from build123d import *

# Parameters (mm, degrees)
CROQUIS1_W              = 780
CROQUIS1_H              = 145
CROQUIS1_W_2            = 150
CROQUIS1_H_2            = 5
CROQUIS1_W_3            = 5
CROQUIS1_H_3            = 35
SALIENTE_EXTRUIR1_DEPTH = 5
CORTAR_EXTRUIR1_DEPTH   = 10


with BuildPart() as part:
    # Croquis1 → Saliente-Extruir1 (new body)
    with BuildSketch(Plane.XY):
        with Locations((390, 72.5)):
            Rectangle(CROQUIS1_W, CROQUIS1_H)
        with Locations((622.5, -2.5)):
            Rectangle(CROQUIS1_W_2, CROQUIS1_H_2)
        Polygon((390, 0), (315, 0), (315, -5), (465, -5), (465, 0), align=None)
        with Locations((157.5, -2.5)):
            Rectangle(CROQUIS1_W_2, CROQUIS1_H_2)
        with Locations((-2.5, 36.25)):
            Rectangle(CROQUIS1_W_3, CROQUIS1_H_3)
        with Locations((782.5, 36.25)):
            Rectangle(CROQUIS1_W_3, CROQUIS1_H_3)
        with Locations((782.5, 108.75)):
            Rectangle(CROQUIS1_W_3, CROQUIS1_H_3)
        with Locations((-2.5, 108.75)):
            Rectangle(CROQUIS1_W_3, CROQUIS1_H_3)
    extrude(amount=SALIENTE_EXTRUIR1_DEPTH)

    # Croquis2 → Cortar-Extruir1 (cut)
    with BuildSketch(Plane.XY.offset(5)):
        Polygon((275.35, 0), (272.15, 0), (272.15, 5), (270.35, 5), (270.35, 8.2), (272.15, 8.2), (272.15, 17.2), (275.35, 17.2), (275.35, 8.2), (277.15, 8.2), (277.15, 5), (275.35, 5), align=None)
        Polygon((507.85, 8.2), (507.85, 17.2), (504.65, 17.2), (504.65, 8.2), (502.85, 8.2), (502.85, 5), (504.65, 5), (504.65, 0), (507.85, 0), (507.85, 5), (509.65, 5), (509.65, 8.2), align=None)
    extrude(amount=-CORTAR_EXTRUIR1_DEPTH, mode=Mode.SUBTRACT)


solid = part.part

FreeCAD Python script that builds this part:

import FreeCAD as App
import Part
import Sketcher

V = App.Vector

doc = App.newDocument("Part")
body = doc.addObject("PartDesign::Body", "Body")

# Sketch on XY plane
sketch1 = body.newObject("Sketcher::SketchObject", "Sketch")
sketch1.AttachmentSupport = (doc.getObject("XY_Plane"), [""])
sketch1.MapMode = "FlatFace"
sketch1.addGeometry(Part.LineSegment(V(0, 19, 0), V(0, 0, 0)), False)
sketch1.addGeometry(Part.LineSegment(V(0, 0, 0), V(82, 0, 0)), False)
sketch1.addGeometry(Part.LineSegment(V(82, 0, 0), V(82, -5, 0)), False)
sketch1.addGeometry(Part.LineSegment(V(82, -5, 0), V(232, -5, 0)), False)
sketch1.addGeometry(Part.LineSegment(V(232, -5, 0), V(232, 0, 0)), False)
sketch1.addGeometry(Part.LineSegment(V(232, 0, 0), V(315, 0, 0)), False)
sketch1.addGeometry(Part.LineSegment(V(315, 0, 0), V(315, -5, 0)), False)
sketch1.addGeometry(Part.LineSegment(V(315, -5, 0), V(465, -5, 0)), False)
sketch1.addGeometry(Part.LineSegment(V(465, -5, 0), V(465, 0, 0)), False)
sketch1.addGeometry(Part.LineSegment(V(465, 0, 0), V(548, 0, 0)), False)
sketch1.addGeometry(Part.LineSegment(V(548, 0, 0), V(548, -5, 0)), False)
sketch1.addGeometry(Part.LineSegment(V(548, -5, 0), V(698, -5, 0)), False)
sketch1.addGeometry(Part.LineSegment(V(698, -5, 0), V(698, 0, 0)), False)
sketch1.addGeometry(Part.LineSegment(V(698, 0, 0), V(780, 0, 0)), False)
sketch1.addGeometry(Part.LineSegment(V(780, 0, 0), V(780, 19, 0)), False)
sketch1.addGeometry(Part.LineSegment(V(780, 19, 0), V(785, 19, 0)), False)
sketch1.addGeometry(Part.LineSegment(V(785, 19, 0), V(785, 54, 0)), False)
sketch1.addGeometry(Part.LineSegment(V(785, 54, 0), V(780, 54, 0)), False)
sketch1.addGeometry(Part.LineSegment(V(780, 54, 0), V(780, 91, 0)), False)
sketch1.addGeometry(Part.LineSegment(V(780, 91, 0), V(785, 91, 0)), False)
sketch1.addGeometry(Part.LineSegment(V(785, 91, 0), V(785, 126, 0)), False)
sketch1.addGeometry(Part.LineSegment(V(785, 126, 0), V(780, 126, 0)), False)
sketch1.addGeometry(Part.LineSegment(V(780, 126, 0), V(780, 145, 0)), False)
sketch1.addGeometry(Part.LineSegment(V(780, 145, 0), V(0, 145, 0)), False)
sketch1.addGeometry(Part.LineSegment(V(0, 145, 0), V(0, 126, 0)), False)
sketch1.addGeometry(Part.LineSegment(V(0, 126, 0), V(-5, 126, 0)), False)
sketch1.addGeometry(Part.LineSegment(V(-5, 126, 0), V(-5, 91, 0)), False)
sketch1.addGeometry(Part.LineSegment(V(-5, 91, 0), V(0, 91, 0)), False)
sketch1.addGeometry(Part.LineSegment(V(0, 91, 0), V(0, 54, 0)), False)
sketch1.addGeometry(Part.LineSegment(V(0, 54, 0), V(-5, 54, 0)), False)
sketch1.addGeometry(Part.LineSegment(V(-5, 54, 0), V(-5, 19, 0)), False)
sketch1.addGeometry(Part.LineSegment(V(-5, 19, 0), V(0, 19, 0)), False)
sketch1.addConstraint(Sketcher.Constraint("Coincident", 0, 2, 1, 1))
sketch1.addConstraint(Sketcher.Constraint("Coincident", 1, 2, 2, 1))
sketch1.addConstraint(Sketcher.Constraint("Coincident", 2, 2, 3, 1))
sketch1.addConstraint(Sketcher.Constraint("Coincident", 3, 2, 4, 1))
sketch1.addConstraint(Sketcher.Constraint("Coincident", 4, 2, 5, 1))
sketch1.addConstraint(Sketcher.Constraint("Coincident", 5, 2, 6, 1))
sketch1.addConstraint(Sketcher.Constraint("Coincident", 6, 2, 7, 1))
sketch1.addConstraint(Sketcher.Constraint("Coincident", 7, 2, 8, 1))
sketch1.addConstraint(Sketcher.Constraint("Coincident", 8, 2, 9, 1))
sketch1.addConstraint(Sketcher.Constraint("Coincident", 9, 2, 10, 1))
sketch1.addConstraint(Sketcher.Constraint("Coincident", 10, 2, 11, 1))
sketch1.addConstraint(Sketcher.Constraint("Coincident", 11, 2, 12, 1))
sketch1.addConstraint(Sketcher.Constraint("Coincident", 12, 2, 13, 1))
sketch1.addConstraint(Sketcher.Constraint("Coincident", 13, 2, 14, 1))
sketch1.addConstraint(Sketcher.Constraint("Coincident", 14, 2, 15, 1))
sketch1.addConstraint(Sketcher.Constraint("Coincident", 15, 2, 16, 1))
sketch1.addConstraint(Sketcher.Constraint("Coincident", 16, 2, 17, 1))
sketch1.addConstraint(Sketcher.Constraint("Coincident", 17, 2, 18, 1))
sketch1.addConstraint(Sketcher.Constraint("Coincident", 18, 2, 19, 1))
sketch1.addConstraint(Sketcher.Constraint("Coincident", 19, 2, 20, 1))
sketch1.addConstraint(Sketcher.Constraint("Coincident", 20, 2, 21, 1))
sketch1.addConstraint(Sketcher.Constraint("Coincident", 21, 2, 22, 1))
sketch1.addConstraint(Sketcher.Constraint("Coincident", 22, 2, 23, 1))
sketch1.addConstraint(Sketcher.Constraint("Coincident", 23, 2, 24, 1))
sketch1.addConstraint(Sketcher.Constraint("Coincident", 24, 2, 25, 1))
sketch1.addConstraint(Sketcher.Constraint("Coincident", 25, 2, 26, 1))
sketch1.addConstraint(Sketcher.Constraint("Coincident", 26, 2, 27, 1))
sketch1.addConstraint(Sketcher.Constraint("Coincident", 27, 2, 28, 1))
sketch1.addConstraint(Sketcher.Constraint("Coincident", 28, 2, 29, 1))
sketch1.addConstraint(Sketcher.Constraint("Coincident", 29, 2, 30, 1))
sketch1.addConstraint(Sketcher.Constraint("Coincident", 30, 2, 31, 1))
sketch1.addConstraint(Sketcher.Constraint("Coincident", 31, 2, 0, 1))
sketch1.addConstraint(Sketcher.Constraint("Vertical", 0))
sketch1.addConstraint(Sketcher.Constraint("Horizontal", 1))
sketch1.addConstraint(Sketcher.Constraint("Vertical", 2))
sketch1.addConstraint(Sketcher.Constraint("Horizontal", 3))
sketch1.addConstraint(Sketcher.Constraint("Vertical", 4))
sketch1.addConstraint(Sketcher.Constraint("Horizontal", 5))
sketch1.addConstraint(Sketcher.Constraint("Vertical", 6))
sketch1.addConstraint(Sketcher.Constraint("Horizontal", 7))
sketch1.addConstraint(Sketcher.Constraint("Vertical", 8))
sketch1.addConstraint(Sketcher.Constraint("Horizontal", 9))
sketch1.addConstraint(Sketcher.Constraint("Vertical", 10))
sketch1.addConstraint(Sketcher.Constraint("Horizontal", 11))
sketch1.addConstraint(Sketcher.Constraint("Vertical", 12))
sketch1.addConstraint(Sketcher.Constraint("Horizontal", 13))
sketch1.addConstraint(Sketcher.Constraint("Vertical", 14))
sketch1.addConstraint(Sketcher.Constraint("Horizontal", 15))
sketch1.addConstraint(Sketcher.Constraint("Vertical", 16))
sketch1.addConstraint(Sketcher.Constraint("Horizontal", 17))
sketch1.addConstraint(Sketcher.Constraint("Vertical", 18))
sketch1.addConstraint(Sketcher.Constraint("Horizontal", 19))
sketch1.addConstraint(Sketcher.Constraint("Vertical", 20))
sketch1.addConstraint(Sketcher.Constraint("Horizontal", 21))
sketch1.addConstraint(Sketcher.Constraint("Vertical", 22))
sketch1.addConstraint(Sketcher.Constraint("Horizontal", 23))
sketch1.addConstraint(Sketcher.Constraint("Vertical", 24))
sketch1.addConstraint(Sketcher.Constraint("Horizontal", 25))
sketch1.addConstraint(Sketcher.Constraint("Vertical", 26))
sketch1.addConstraint(Sketcher.Constraint("Horizontal", 27))
sketch1.addConstraint(Sketcher.Constraint("Vertical", 28))
sketch1.addConstraint(Sketcher.Constraint("Horizontal", 29))
sketch1.addConstraint(Sketcher.Constraint("Vertical", 30))
sketch1.addConstraint(Sketcher.Constraint("Horizontal", 31))
sketch1.addConstraint(Sketcher.Constraint("Coincident", 0, 2, -1, 1))
sketch1.addConstraint(Sketcher.Constraint("PointOnObject", 4, 2, -1))
sketch1.addConstraint(Sketcher.Constraint("PointOnObject", 8, 2, -1))
sketch1.addConstraint(Sketcher.Constraint("PointOnObject", 12, 2, -1))
sketch1.addConstraint(Sketcher.Constraint("PointOnObject", 23, 2, -2))
sketch1.addConstraint(Sketcher.Constraint("PointOnObject", 27, 2, -2))
sketch1.addConstraint(Sketcher.Constraint("Horizontal", 3, 2, 6, 2))
sketch1.addConstraint(Sketcher.Constraint("Horizontal", 7, 2, 10, 2))
sketch1.addConstraint(Sketcher.Constraint("Horizontal", 21, 2, 24, 2))
sketch1.addConstraint(Sketcher.Constraint("Horizontal", 19, 2, 26, 2))
sketch1.addConstraint(Sketcher.Constraint("Horizontal", 17, 2, 28, 2))
sketch1.addConstraint(Sketcher.Constraint("Horizontal", 15, 2, 30, 2))
sketch1.addConstraint(Sketcher.Constraint("Vertical", 14, 2, 17, 2))
sketch1.addConstraint(Sketcher.Constraint("Vertical", 16, 2, 19, 2))
sketch1.addConstraint(Sketcher.Constraint("Vertical", 18, 2, 21, 2))
sketch1.addConstraint(Sketcher.Constraint("Vertical", 26, 2, 29, 2))
sketch1.addConstraint(Sketcher.Constraint("Equal", 1, 5))
sketch1.addConstraint(Sketcher.Constraint("Equal", 3, 7))
sketch1.addConstraint(Sketcher.Constraint("Equal", 5, 9))
sketch1.addConstraint(Sketcher.Constraint("Equal", 7, 11))
sketch1.addConstraint(Sketcher.Constraint("Equal", 9, 13))
sketch1.addConstraint(Sketcher.Constraint("Equal", 21, 25))
sketch1.addConstraint(Sketcher.Constraint("Equal", 31, 2))
sketch1.addConstraint(Sketcher.Constraint("Equal", 16, 20))
sketch1.addConstraint(Sketcher.Constraint("Equal", 14, 22))
sketch1.addConstraint(Sketcher.Constraint("DistanceX", 3, 1, 3, 2, 150.0))
sketch1.addConstraint(Sketcher.Constraint("DistanceX", 15, 1, 15, 2, 5.0))
sketch1.addConstraint(Sketcher.Constraint("DistanceX", 23, 2, 23, 1, 780.0))
sketch1.addConstraint(Sketcher.Constraint("DistanceY", 16, 1, 16, 2, 35.0))
sketch1.addConstraint(Sketcher.Constraint("DistanceY", 18, 1, 18, 2, 37.5))
sketch1.addConstraint(Sketcher.Constraint("DistanceY", -1, 1, 22, 2, 145.0))
pad1 = body.newObject("PartDesign::Pad", "Pad")
pad1.Profile = sketch1
pad1.Length = 5

# Sketch on XY plane
sketch2 = body.newObject("Sketcher::SketchObject", "Sketch001")
sketch2.AttachmentSupport = (doc.getObject("XY_Plane"), [""])
sketch2.MapMode = "FlatFace"
sketch2.AttachmentOffset = App.Placement(V(0, 0, 5), App.Rotation())
sketch2.addGeometry(Part.LineSegment(V(272.1, 0, 0), V(275.4, 0, 0)), False)
sketch2.addGeometry(Part.LineSegment(V(275.4, 0, 0), V(275.4, 5, 0)), False)
sketch2.addGeometry(Part.LineSegment(V(275.4, 5, 0), V(277.1, 5, 0)), False)
sketch2.addGeometry(Part.LineSegment(V(277.1, 5, 0), V(277.1, 8.2, 0)), False)
sketch2.addGeometry(Part.LineSegment(V(277.1, 8.2, 0), V(275.4, 8.2, 0)), False)
sketch2.addGeometry(Part.LineSegment(V(275.4, 8.2, 0), V(275.4, 17.2, 0)), False)
sketch2.addGeometry(Part.LineSegment(V(275.4, 17.2, 0), V(272.1, 17.2, 0)), False)
sketch2.addGeometry(Part.LineSegment(V(272.1, 17.2, 0), V(272.1, 8.2, 0)), False)
sketch2.addGeometry(Part.LineSegment(V(272.1, 8.2, 0), V(270.4, 8.2, 0)), False)
sketch2.addGeometry(Part.LineSegment(V(270.4, 8.2, 0), V(270.4, 5, 0)), False)
sketch2.addGeometry(Part.LineSegment(V(270.4, 5, 0), V(272.1, 5, 0)), False)
sketch2.addGeometry(Part.LineSegment(V(272.1, 5, 0), V(272.1, 0, 0)), False)
sketch2.addGeometry(Part.LineSegment(V(507.9, 8.2, 0), V(507.9, 17.2, 0)), False)
sketch2.addGeometry(Part.LineSegment(V(507.9, 17.2, 0), V(504.6, 17.2, 0)), False)
sketch2.addGeometry(Part.LineSegment(V(504.6, 17.2, 0), V(504.6, 8.2, 0)), False)
sketch2.addGeometry(Part.LineSegment(V(504.6, 8.2, 0), V(502.9, 8.2, 0)), False)
sketch2.addGeometry(Part.LineSegment(V(502.9, 8.2, 0), V(502.9, 5, 0)), False)
sketch2.addGeometry(Part.LineSegment(V(502.9, 5, 0), V(504.6, 5, 0)), False)
sketch2.addGeometry(Part.LineSegment(V(504.6, 5, 0), V(504.6, 0, 0)), False)
sketch2.addGeometry(Part.LineSegment(V(504.6, 0, 0), V(507.9, 0, 0)), False)
sketch2.addGeometry(Part.LineSegment(V(507.9, 0, 0), V(507.9, 5, 0)), False)
sketch2.addGeometry(Part.LineSegment(V(507.9, 5, 0), V(509.6, 5, 0)), False)
sketch2.addGeometry(Part.LineSegment(V(509.6, 5, 0), V(509.6, 8.2, 0)), False)
sketch2.addGeometry(Part.LineSegment(V(509.6, 8.2, 0), V(507.9, 8.2, 0)), False)
sketch2.addConstraint(Sketcher.Constraint("Coincident", 0, 2, 1, 1))
sketch2.addConstraint(Sketcher.Constraint("Coincident", 1, 2, 2, 1))
sketch2.addConstraint(Sketcher.Constraint("Coincident", 2, 2, 3, 1))
sketch2.addConstraint(Sketcher.Constraint("Coincident", 3, 2, 4, 1))
sketch2.addConstraint(Sketcher.Constraint("Coincident", 4, 2, 5, 1))
sketch2.addConstraint(Sketcher.Constraint("Coincident", 5, 2, 6, 1))
sketch2.addConstraint(Sketcher.Constraint("Coincident", 6, 2, 7, 1))
sketch2.addConstraint(Sketcher.Constraint("Coincident", 7, 2, 8, 1))
sketch2.addConstraint(Sketcher.Constraint("Coincident", 8, 2, 9, 1))
sketch2.addConstraint(Sketcher.Constraint("Coincident", 9, 2, 10, 1))
sketch2.addConstraint(Sketcher.Constraint("Coincident", 10, 2, 11, 1))
sketch2.addConstraint(Sketcher.Constraint("Coincident", 11, 2, 0, 1))
sketch2.addConstraint(Sketcher.Constraint("Coincident", 12, 2, 13, 1))
sketch2.addConstraint(Sketcher.Constraint("Coincident", 13, 2, 14, 1))
sketch2.addConstraint(Sketcher.Constraint("Coincident", 14, 2, 15, 1))
sketch2.addConstraint(Sketcher.Constraint("Coincident", 15, 2, 16, 1))
sketch2.addConstraint(Sketcher.Constraint("Coincident", 16, 2, 17, 1))
sketch2.addConstraint(Sketcher.Constraint("Coincident", 17, 2, 18, 1))
sketch2.addConstraint(Sketcher.Constraint("Coincident", 18, 2, 19, 1))
sketch2.addConstraint(Sketcher.Constraint("Coincident", 19, 2, 20, 1))
sketch2.addConstraint(Sketcher.Constraint("Coincident", 20, 2, 21, 1))
sketch2.addConstraint(Sketcher.Constraint("Coincident", 21, 2, 22, 1))
sketch2.addConstraint(Sketcher.Constraint("Coincident", 22, 2, 23, 1))
sketch2.addConstraint(Sketcher.Constraint("Coincident", 23, 2, 12, 1))
sketch2.addConstraint(Sketcher.Constraint("Horizontal", 0))
sketch2.addConstraint(Sketcher.Constraint("Vertical", 1))
sketch2.addConstraint(Sketcher.Constraint("Horizontal", 2))
sketch2.addConstraint(Sketcher.Constraint("Vertical", 3))
sketch2.addConstraint(Sketcher.Constraint("Horizontal", 4))
sketch2.addConstraint(Sketcher.Constraint("Vertical", 5))
sketch2.addConstraint(Sketcher.Constraint("Horizontal", 6))
sketch2.addConstraint(Sketcher.Constraint("Vertical", 7))
sketch2.addConstraint(Sketcher.Constraint("Horizontal", 8))
sketch2.addConstraint(Sketcher.Constraint("Vertical", 9))
sketch2.addConstraint(Sketcher.Constraint("Horizontal", 10))
sketch2.addConstraint(Sketcher.Constraint("Vertical", 11))
sketch2.addConstraint(Sketcher.Constraint("Vertical", 12))
sketch2.addConstraint(Sketcher.Constraint("Horizontal", 13))
sketch2.addConstraint(Sketcher.Constraint("Vertical", 14))
sketch2.addConstraint(Sketcher.Constraint("Horizontal", 15))
sketch2.addConstraint(Sketcher.Constraint("Vertical", 16))
sketch2.addConstraint(Sketcher.Constraint("Horizontal", 17))
sketch2.addConstraint(Sketcher.Constraint("Vertical", 18))
sketch2.addConstraint(Sketcher.Constraint("Horizontal", 19))
sketch2.addConstraint(Sketcher.Constraint("Vertical", 20))
sketch2.addConstraint(Sketcher.Constraint("Horizontal", 21))
sketch2.addConstraint(Sketcher.Constraint("Vertical", 22))
sketch2.addConstraint(Sketcher.Constraint("Horizontal", 23))
sketch2.addConstraint(Sketcher.Constraint("PointOnObject", 0, 2, -1))
sketch2.addConstraint(Sketcher.Constraint("PointOnObject", 18, 2, -1))
sketch2.addConstraint(Sketcher.Constraint("Horizontal", 4, 2, 7, 2))
sketch2.addConstraint(Sketcher.Constraint("Horizontal", 2, 2, 9, 2))
sketch2.addConstraint(Sketcher.Constraint("Horizontal", 6, 2, 12, 2))
sketch2.addConstraint(Sketcher.Constraint("Horizontal", 8, 2, 14, 2))
sketch2.addConstraint(Sketcher.Constraint("Horizontal", 10, 2, 16, 2))
sketch2.addConstraint(Sketcher.Constraint("Horizontal", 17, 2, 20, 2))
sketch2.addConstraint(Sketcher.Constraint("Horizontal", 15, 2, 22, 2))
sketch2.addConstraint(Sketcher.Constraint("Vertical", 1, 2, 4, 2))
sketch2.addConstraint(Sketcher.Constraint("Vertical", 7, 2, 10, 2))
sketch2.addConstraint(Sketcher.Constraint("Vertical", 14, 2, 17, 2))
sketch2.addConstraint(Sketcher.Constraint("Vertical", 12, 2, 19, 2))
sketch2.addConstraint(Sketcher.Constraint("Equal", 4, 8))
sketch2.addConstraint(Sketcher.Constraint("Equal", 6, 13))
sketch2.addConstraint(Sketcher.Constraint("Equal", 10, 15))
sketch2.addConstraint(Sketcher.Constraint("Equal", 17, 21))
sketch2.addConstraint(Sketcher.Constraint("Equal", 19, 3))
sketch2.addConstraint(Sketcher.Constraint("DistanceY", 1, 1, 1, 2, 5.0))
sketch2.addConstraint(Sketcher.Constraint("DistanceY", 5, 1, 5, 2, 9.0))
sketch2.addConstraint(Sketcher.Constraint("DistanceX", 0, 1, 0, 2, 3.2))
sketch2.addConstraint(Sketcher.Constraint("DistanceX", 2, 1, 2, 2, 1.8))
sketch2.addConstraint(Sketcher.Constraint("DistanceX", 3, 2, 12, 2, 230.7))
sketch2.addConstraint(Sketcher.Constraint("DistanceX", -1, 1, 0, 2, 275.35))
pocket1 = body.newObject("PartDesign::Pocket", "Pocket")
pocket1.Profile = sketch2
pocket1.Length = 10

doc.recompute()
